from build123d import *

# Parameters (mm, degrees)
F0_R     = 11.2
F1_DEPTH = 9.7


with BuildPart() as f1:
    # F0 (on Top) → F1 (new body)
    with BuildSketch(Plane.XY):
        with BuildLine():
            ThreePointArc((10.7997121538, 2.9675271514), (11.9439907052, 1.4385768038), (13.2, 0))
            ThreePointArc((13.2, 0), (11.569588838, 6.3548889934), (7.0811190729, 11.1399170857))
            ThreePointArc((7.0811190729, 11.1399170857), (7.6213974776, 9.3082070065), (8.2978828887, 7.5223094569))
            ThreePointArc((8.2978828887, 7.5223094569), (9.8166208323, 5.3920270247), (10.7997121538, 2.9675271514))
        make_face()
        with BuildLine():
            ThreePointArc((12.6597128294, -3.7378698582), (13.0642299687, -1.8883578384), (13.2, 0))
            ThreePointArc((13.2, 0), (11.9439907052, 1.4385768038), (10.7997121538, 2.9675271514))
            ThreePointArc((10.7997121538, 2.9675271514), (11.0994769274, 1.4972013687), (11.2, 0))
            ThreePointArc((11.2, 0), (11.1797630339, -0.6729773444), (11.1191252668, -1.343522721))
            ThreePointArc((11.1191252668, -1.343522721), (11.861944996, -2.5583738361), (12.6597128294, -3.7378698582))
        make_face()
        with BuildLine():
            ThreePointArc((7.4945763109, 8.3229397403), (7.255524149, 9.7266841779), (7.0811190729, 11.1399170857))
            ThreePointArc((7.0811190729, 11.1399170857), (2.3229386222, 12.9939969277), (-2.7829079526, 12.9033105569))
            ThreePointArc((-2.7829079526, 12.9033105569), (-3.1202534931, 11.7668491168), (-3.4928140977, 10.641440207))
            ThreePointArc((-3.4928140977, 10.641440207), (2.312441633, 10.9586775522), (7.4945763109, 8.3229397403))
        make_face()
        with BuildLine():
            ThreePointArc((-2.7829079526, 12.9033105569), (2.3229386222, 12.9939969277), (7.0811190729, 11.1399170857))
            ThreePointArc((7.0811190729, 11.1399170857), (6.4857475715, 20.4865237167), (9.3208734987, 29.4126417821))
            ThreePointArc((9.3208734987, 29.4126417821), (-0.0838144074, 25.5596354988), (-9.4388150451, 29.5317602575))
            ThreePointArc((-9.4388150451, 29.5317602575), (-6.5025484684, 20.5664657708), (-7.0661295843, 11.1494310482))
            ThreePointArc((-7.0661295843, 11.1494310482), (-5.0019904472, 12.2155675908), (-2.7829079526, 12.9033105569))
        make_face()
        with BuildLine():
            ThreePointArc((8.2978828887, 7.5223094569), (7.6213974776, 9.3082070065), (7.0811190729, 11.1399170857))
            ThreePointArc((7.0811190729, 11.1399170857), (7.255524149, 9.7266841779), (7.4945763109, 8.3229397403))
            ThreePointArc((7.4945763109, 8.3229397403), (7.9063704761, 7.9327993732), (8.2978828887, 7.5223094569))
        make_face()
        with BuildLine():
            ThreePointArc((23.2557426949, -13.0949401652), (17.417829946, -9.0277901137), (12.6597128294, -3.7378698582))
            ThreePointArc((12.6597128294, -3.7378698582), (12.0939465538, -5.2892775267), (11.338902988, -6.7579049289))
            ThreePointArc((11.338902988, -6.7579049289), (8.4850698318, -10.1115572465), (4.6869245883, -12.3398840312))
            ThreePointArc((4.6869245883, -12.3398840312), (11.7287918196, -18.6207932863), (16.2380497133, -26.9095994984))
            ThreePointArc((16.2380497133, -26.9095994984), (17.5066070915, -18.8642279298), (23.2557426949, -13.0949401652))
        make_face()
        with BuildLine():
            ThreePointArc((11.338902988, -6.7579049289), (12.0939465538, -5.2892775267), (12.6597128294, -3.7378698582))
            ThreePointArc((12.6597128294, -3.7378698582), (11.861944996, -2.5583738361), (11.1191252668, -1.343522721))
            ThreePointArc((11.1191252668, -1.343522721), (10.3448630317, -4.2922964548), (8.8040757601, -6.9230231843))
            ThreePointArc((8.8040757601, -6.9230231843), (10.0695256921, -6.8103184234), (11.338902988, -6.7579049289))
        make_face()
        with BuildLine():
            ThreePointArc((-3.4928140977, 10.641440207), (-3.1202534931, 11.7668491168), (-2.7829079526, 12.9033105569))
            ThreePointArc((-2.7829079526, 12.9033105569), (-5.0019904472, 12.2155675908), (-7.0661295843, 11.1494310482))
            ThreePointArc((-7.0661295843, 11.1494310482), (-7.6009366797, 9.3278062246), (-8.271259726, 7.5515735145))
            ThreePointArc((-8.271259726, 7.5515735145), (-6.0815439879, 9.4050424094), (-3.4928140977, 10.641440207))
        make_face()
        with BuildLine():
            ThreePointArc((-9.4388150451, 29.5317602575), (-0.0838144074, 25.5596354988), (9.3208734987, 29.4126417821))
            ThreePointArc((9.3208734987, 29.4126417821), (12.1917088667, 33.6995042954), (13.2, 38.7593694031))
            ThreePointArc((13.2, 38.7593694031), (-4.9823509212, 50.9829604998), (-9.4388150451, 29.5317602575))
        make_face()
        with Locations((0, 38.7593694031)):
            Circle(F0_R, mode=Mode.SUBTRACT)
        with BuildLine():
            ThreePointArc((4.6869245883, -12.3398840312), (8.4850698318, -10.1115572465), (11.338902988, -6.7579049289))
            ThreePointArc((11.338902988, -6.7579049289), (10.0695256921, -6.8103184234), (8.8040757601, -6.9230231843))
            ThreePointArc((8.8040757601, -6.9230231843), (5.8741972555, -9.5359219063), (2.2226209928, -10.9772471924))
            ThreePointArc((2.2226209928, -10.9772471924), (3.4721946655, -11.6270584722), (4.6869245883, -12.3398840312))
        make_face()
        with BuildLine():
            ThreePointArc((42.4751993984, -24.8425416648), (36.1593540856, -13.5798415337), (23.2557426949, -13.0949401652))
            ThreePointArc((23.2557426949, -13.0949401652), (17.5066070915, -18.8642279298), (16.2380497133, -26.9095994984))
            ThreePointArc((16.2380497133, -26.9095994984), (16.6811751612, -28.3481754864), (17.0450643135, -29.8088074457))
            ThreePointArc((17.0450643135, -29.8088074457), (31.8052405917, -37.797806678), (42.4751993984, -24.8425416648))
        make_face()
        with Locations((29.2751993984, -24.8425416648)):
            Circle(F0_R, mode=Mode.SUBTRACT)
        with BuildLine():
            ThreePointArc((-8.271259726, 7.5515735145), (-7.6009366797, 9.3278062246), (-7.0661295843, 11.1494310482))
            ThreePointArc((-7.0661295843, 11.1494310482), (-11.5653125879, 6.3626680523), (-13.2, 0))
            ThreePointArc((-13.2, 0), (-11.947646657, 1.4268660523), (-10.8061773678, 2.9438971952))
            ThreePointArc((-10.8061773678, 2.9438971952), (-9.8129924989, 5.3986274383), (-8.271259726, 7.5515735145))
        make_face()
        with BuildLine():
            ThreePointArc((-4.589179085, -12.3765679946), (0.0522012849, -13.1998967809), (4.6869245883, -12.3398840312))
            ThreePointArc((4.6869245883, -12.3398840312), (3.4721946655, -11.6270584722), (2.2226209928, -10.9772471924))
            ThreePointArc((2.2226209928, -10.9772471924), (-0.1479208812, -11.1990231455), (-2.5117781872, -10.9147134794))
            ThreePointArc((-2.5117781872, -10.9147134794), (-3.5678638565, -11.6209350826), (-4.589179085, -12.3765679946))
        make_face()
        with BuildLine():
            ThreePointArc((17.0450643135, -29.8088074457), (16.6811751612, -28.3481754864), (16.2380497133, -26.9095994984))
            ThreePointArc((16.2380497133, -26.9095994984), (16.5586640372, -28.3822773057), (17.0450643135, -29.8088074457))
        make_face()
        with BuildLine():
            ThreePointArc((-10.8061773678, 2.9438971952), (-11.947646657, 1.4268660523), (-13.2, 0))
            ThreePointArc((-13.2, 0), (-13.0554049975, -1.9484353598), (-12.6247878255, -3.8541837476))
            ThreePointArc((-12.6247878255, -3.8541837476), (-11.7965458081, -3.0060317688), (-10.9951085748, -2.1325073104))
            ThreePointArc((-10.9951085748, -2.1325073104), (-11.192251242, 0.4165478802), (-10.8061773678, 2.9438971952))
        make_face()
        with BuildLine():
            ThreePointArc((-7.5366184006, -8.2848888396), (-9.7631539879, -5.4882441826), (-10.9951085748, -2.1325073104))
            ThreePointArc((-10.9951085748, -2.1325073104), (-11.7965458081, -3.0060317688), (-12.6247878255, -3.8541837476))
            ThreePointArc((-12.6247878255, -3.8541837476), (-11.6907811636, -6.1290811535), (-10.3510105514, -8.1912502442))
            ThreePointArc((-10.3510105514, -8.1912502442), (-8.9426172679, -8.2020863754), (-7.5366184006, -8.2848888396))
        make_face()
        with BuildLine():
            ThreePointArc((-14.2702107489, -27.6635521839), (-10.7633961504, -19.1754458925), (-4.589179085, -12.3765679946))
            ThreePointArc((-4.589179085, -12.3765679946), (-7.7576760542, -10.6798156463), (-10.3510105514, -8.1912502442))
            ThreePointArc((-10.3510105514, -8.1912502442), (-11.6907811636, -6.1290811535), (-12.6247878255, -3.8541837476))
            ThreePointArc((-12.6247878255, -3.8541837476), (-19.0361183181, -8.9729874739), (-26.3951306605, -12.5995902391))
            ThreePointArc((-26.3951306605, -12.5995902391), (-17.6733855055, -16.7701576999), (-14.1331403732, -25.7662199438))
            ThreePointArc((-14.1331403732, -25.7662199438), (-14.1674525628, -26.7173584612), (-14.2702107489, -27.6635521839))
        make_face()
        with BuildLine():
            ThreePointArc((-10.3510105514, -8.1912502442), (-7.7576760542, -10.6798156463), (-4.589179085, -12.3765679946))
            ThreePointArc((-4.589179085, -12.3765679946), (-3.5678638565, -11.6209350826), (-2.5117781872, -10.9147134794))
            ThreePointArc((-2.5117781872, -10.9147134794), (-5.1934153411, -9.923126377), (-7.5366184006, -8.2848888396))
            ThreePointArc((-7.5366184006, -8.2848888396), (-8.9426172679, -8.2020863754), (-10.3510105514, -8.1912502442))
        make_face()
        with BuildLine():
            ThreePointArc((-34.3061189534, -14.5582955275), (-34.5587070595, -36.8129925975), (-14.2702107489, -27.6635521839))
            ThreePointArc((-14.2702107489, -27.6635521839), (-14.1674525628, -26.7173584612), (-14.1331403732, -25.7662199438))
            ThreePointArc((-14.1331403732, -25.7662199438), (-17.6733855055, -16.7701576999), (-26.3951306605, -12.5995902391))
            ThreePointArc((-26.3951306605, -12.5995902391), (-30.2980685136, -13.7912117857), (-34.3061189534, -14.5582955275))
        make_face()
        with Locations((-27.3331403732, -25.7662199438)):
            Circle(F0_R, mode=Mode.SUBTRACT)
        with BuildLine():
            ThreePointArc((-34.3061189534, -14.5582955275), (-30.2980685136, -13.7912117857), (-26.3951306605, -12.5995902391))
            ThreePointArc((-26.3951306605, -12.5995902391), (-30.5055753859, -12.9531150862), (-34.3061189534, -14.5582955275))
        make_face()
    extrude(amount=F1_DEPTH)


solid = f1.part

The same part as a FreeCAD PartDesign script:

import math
import FreeCAD as App
import Part
import Sketcher
from FreeCAD import Vector
Q = App.Units.Quantity

doc = App.newDocument("Part")
body = doc.addObject("PartDesign::Body", "Body")

# Sketch on XY plane
sketch1 = body.newObject("Sketcher::SketchObject", "Sketch")
sketch1.AttachmentSupport = (doc.getObject("XY_Plane"), [""])
sketch1.MapMode = "FlatFace"
sketch1.addGeometry(Part.ArcOfCircle(Part.Circle(Vector(11.8, -33.5, 0), Vector(0, 0, 1), 26.7), math.radians(128), math.radians(167)), False)
sketch1.addGeometry(Part.ArcOfCircle(Part.Circle(Vector(0, 0, 0), Vector(0, 0, 1), 13.2), math.radians(-110), math.radians(-69)), False)
sketch1.addGeometry(Part.ArcOfCircle(Part.Circle(Vector(-9.9, -35.7, 0), Vector(0, 0, 1), 27.5), math.radians(19), math.radians(58)), False)
sketch1.addGeometry(Part.ArcOfCircle(Part.Circle(Vector(29.3, -24.8, 0), Vector(0, 0, 1), 13.2), math.radians(-170.99), math.radians(-157.9)), False)
sketch1.addGeometry(Part.ArcOfCircle(Part.Circle(Vector(29.3, -24.8, 0), Vector(0, 0, 1), 13.2), math.radians(-158), math.radians(0)), False)
sketch1.addGeometry(Part.ArcOfCircle(Part.Circle(Vector(29.3, -24.8, 0), Vector(0, 0, 1), 13.2), math.radians(0), math.radians(117)), False)
sketch1.addGeometry(Part.ArcOfCircle(Part.Circle(Vector(38, 14.2, 0), Vector(0, 0, 1), 31), math.radians(-145), math.radians(-118)), False)
sketch1.addGeometry(Part.ArcOfCircle(Part.Circle(Vector(0, 0, 0), Vector(0, 0, 1), 13.2), math.radians(-16.45), math.radians(0)), False)
sketch1.addGeometry(Part.ArcOfCircle(Part.Circle(Vector(0, 0, 0), Vector(0, 0, 1), 13.2), math.radians(0), math.radians(58)), False)
sketch1.addGeometry(Part.ArcOfCircle(Part.Circle(Vector(31.7, 17.4, 0), Vector(0, 0, 1), 25.4), math.radians(152), math.radians(194)), False)
sketch1.addGeometry(Part.ArcOfCircle(Part.Circle(Vector(0, 38.8, 0), Vector(0, 0, 1), 13.2), math.radians(-45), math.radians(0)), False)
sketch1.addGeometry(Part.ArcOfCircle(Part.Circle(Vector(0, 38.8, 0), Vector(0, 0, 1), 13.2), math.radians(0), math.radians(224)), False)
sketch1.addGeometry(Part.ArcOfCircle(Part.Circle(Vector(-31.5, 17.3, 0), Vector(0, 0, 1), 25.2), math.radians(-14), math.radians(29)), False)
sketch1.addGeometry(Part.ArcOfCircle(Part.Circle(Vector(0, 0, 0), Vector(0, 0, 1), 13.2), math.radians(122), math.radians(180)), False)
sketch1.addGeometry(Part.ArcOfCircle(Part.Circle(Vector(0, 0, 0), Vector(0, 0, 1), 13.2), math.radians(180), math.radians(196.98)), False)
sketch1.addGeometry(Part.ArcOfCircle(Part.Circle(Vector(-39.4, 23.2, 0), Vector(0, 0, 1), 38.1), math.radians(-70), math.radians(-45)), False)
sketch1.addGeometry(Part.ArcOfCircle(Part.Circle(Vector(-27.3, -25.8, 0), Vector(0, 0, 1), 13.2), math.radians(86), math.radians(122)), False)
sketch1.addGeometry(Part.ArcOfCircle(Part.Circle(Vector(-27.3, -25.8, 0), Vector(0, 0, 1), 13.2), math.radians(122), math.radians(352)), False)
sketch1.addGeometry(Part.Circle(Vector(-27.3, -25.8, 0), Vector(0, 0, 1), 11.2), False)
sketch1.addGeometry(Part.ArcOfCircle(Part.Circle(Vector(0, 0, 0), Vector(0, 0, 1), 11.2), math.radians(-103), math.radians(-79)), False)
sketch1.addGeometry(Part.ArcOfCircle(Part.Circle(Vector(0, 0, 0), Vector(0, 0, 1), 11.2), math.radians(-132), math.radians(-103)), False)
sketch1.addGeometry(Part.ArcOfCircle(Part.Circle(Vector(0, 0, 0), Vector(0, 0, 1), 11.2), math.radians(-169), math.radians(-132)), False)
sketch1.addGeometry(Part.ArcOfCircle(Part.Circle(Vector(0, 0, 0), Vector(0, 0, 1), 11.2), math.radians(165), math.radians(191)), False)
sketch1.addGeometry(Part.ArcOfCircle(Part.Circle(Vector(0, 0, 0), Vector(0, 0, 1), 11.2), math.radians(138), math.radians(165)), False)
sketch1.addGeometry(Part.ArcOfCircle(Part.Circle(Vector(0, 0, 0), Vector(0, 0, 1), 11.2), math.radians(108), math.radians(138)), False)
sketch1.addGeometry(Part.ArcOfCircle(Part.Circle(Vector(0, 0, 0), Vector(0, 0, 1), 11.2), math.radians(48), math.radians(108)), False)
sketch1.addGeometry(Part.ArcOfCircle(Part.Circle(Vector(0, 0, 0), Vector(0, 0, 1), 11.2), math.radians(42.19), math.radians(48)), False)
sketch1.addGeometry(Part.ArcOfCircle(Part.Circle(Vector(0, 0, 0), Vector(0, 0, 1), 11.2), math.radians(15), math.radians(42)), False)
sketch1.addGeometry(Part.ArcOfCircle(Part.Circle(Vector(0, 0, 0), Vector(0, 0, 1), 11.2), math.radians(0), math.radians(15.36)), False)
sketch1.addGeometry(Part.ArcOfCircle(Part.Circle(Vector(0, 0, 0), Vector(0, 0, 1), 11.2), math.radians(-6.89), math.radians(0)), False)
sketch1.addGeometry(Part.ArcOfCircle(Part.Circle(Vector(0, 0, 0), Vector(0, 0, 1), 11.2), math.radians(-79), math.radians(-7)), False)
sketch1.addGeometry(Part.Circle(Vector(29.3, -24.8, 0), Vector(0, 0, 1), 11.2), False)
sketch1.addGeometry(Part.Circle(Vector(0, 38.8, 0), Vector(0, 0, 1), 11.2), False)
sketch1.addConstraint(Sketcher.Constraint("Coincident", 0, 1, 1, 1))
sketch1.addConstraint(Sketcher.Constraint("Coincident", 1, 2, 2, 2))
sketch1.addConstraint(Sketcher.Constraint("Coincident", 2, 1, 3, 1))
sketch1.addConstraint(Sketcher.Constraint("Tangent", 3, 2, 4, 1))
sketch1.addConstraint(Sketcher.Constraint("Tangent", 4, 2, 5, 1))
sketch1.addConstraint(Sketcher.Constraint("Coincident", 5, 2, 6, 2))
sketch1.addConstraint(Sketcher.Constraint("Coincident", 6, 1, 7, 1))
sketch1.addConstraint(Sketcher.Constraint("Tangent", 7, 2, 8, 1))
sketch1.addConstraint(Sketcher.Constraint("Coincident", 8, 2, 9, 2))
sketch1.addConstraint(Sketcher.Constraint("Coincident", 9, 1, 10, 1))
sketch1.addConstraint(Sketcher.Constraint("Tangent", 10, 2, 11, 1))
sketch1.addConstraint(Sketcher.Constraint("Coincident", 11, 2, 12, 2))
sketch1.addConstraint(Sketcher.Constraint("Coincident", 12, 1, 13, 1))
sketch1.addConstraint(Sketcher.Constraint("Tangent", 13, 2, 14, 1))
sketch1.addConstraint(Sketcher.Constraint("Coincident", 14, 2, 15, 2))
sketch1.addConstraint(Sketcher.Constraint("Coincident", 15, 1, 16, 1))
sketch1.addConstraint(Sketcher.Constraint("Tangent", 16, 2, 17, 1))
sketch1.addConstraint(Sketcher.Constraint("Coincident", 17, 2, 0, 2))
sketch1.addConstraint(Sketcher.Constraint("Tangent", 19, 1, 20, 2))
sketch1.addConstraint(Sketcher.Constraint("Tangent", 20, 1, 21, 2))
sketch1.addConstraint(Sketcher.Constraint("Tangent", 21, 1, 22, 2))
sketch1.addConstraint(Sketcher.Constraint("Tangent", 22, 1, 23, 2))
sketch1.addConstraint(Sketcher.Constraint("Tangent", 23, 1, 24, 2))
sketch1.addConstraint(Sketcher.Constraint("Tangent", 24, 1, 25, 2))
sketch1.addConstraint(Sketcher.Constraint("Tangent", 25, 1, 26, 2))
sketch1.addConstraint(Sketcher.Constraint("Tangent", 26, 1, 27, 2))
sketch1.addConstraint(Sketcher.Constraint("Tangent", 27, 1, 28, 2))
sketch1.addConstraint(Sketcher.Constraint("Tangent", 28, 1, 29, 2))
sketch1.addConstraint(Sketcher.Constraint("Tangent", 29, 1, 30, 2))
sketch1.addConstraint(Sketcher.Constraint("Tangent", 30, 1, 19, 2))
sketch1.addConstraint(Sketcher.Constraint("Coincident", 1, 3, -1, 1))
sketch1.addConstraint(Sketcher.Constraint("Coincident", 7, 3, -1, 1))
sketch1.addConstraint(Sketcher.Constraint("Coincident", 13, 3, -1, 1))
sketch1.addConstraint(Sketcher.Constraint("Coincident", 19, 3, -1, 1))
sketch1.addConstraint(Sketcher.Constraint("Coincident", 21, 3, -1, 1))
sketch1.addConstraint(Sketcher.Constraint("Coincident", 23, 3, -1, 1))
sketch1.addConstraint(Sketcher.Constraint("Coincident", 25, 3, -1, 1))
sketch1.addConstraint(Sketcher.Constraint("Coincident", 27, 3, -1, 1))
sketch1.addConstraint(Sketcher.Constraint("Coincident", 5, 3, 3, 3))
sketch1.addConstraint(Sketcher.Constraint("Coincident", 18, 3, 16, 3))
sketch1.addConstraint(Sketcher.Constraint("Coincident", 31, 3, 3, 3))
sketch1.addConstraint(Sketcher.Constraint("Coincident", 32, 3, 10, 3))
sketch1.addConstraint(Sketcher.Constraint("Equal", 1, 3))
sketch1.addConstraint(Sketcher.Constraint("Equal", 5, 7))
sketch1.addConstraint(Sketcher.Constraint("Equal", 7, 8))
sketch1.addConstraint(Sketcher.Constraint("Equal", 8, 10))
sketch1.addConstraint(Sketcher.Constraint("Equal", 10, 11))
sketch1.addConstraint(Sketcher.Constraint("Equal", 11, 13))
sketch1.addConstraint(Sketcher.Constraint("Equal", 13, 14))
sketch1.addConstraint(Sketcher.Constraint("Equal", 14, 16))
sketch1.addConstraint(Sketcher.Constraint("Equal", 16, 17))
sketch1.addConstraint(Sketcher.Constraint("Equal", 18, 19))
sketch1.addConstraint(Sketcher.Constraint("Equal", 27, 28))
sketch1.addConstraint(Sketcher.Constraint("Equal", 30, 31))
sketch1.addConstraint(Sketcher.Constraint("Equal", 31, 32))
sketch1.addConstraint(Sketcher.Constraint("PointOnObject", 10, 3, -2))
sketch1.addConstraint(Sketcher.Constraint("PointOnObject", 7, 2, -1))
sketch1.addConstraint(Sketcher.Constraint("PointOnObject", 13, 2, -1))
sketch1.addConstraint(Sketcher.Constraint("PointOnObject", 28, 1, -1))
sketch1.addConstraint(Sketcher.Constraint("Horizontal", 31, 3, 4, 2))
sketch1.addConstraint(Sketcher.Constraint("Horizontal", 32, 3, 10, 2))
sketch1.addConstraint(Sketcher.Constraint("Diameter", 18, Q("22.4 mm")))
sketch1.addConstraint(Sketcher.Constraint("Radius", 1, Q("13.2 mm")))
sketch1.addConstraint(Sketcher.Constraint("Radius", 15, Q("38.076199 mm")))
sketch1.addConstraint(Sketcher.Constraint("Radius", 0, Q("26.714522 mm")))
sketch1.addConstraint(Sketcher.Constraint("Radius", 9, Q("25.378809 mm")))
sketch1.addConstraint(Sketcher.Constraint("Radius", 2, Q("27.548882 mm")))
sketch1.addConstraint(Sketcher.Constraint("Radius", 6, Q("31.032348 mm")))
sketch1.addConstraint(Sketcher.Constraint("Radius", 12, Q("25.219938 mm")))
sketch1.addConstraint(Sketcher.Constraint("DistanceX", 2, 3, -1, 1, Q("9.858699 mm")))
sketch1.addConstraint(Sketcher.Constraint("DistanceX", -1, 1, 3, 3, Q("29.275199 mm")))
sketch1.addConstraint(Sketcher.Constraint("DistanceY", 2, 1, -1, 1, Q("26.909599 mm")))
sketch1.addConstraint(Sketcher.Constraint("DistanceY", 3, 3, -1, 1, Q("24.842542 mm")))
sketch1.addConstraint(Sketcher.Constraint("DistanceX", -1, 1, 6, 3, Q("37.958921 mm")))
sketch1.addConstraint(Sketcher.Constraint("DistanceX", -1, 1, 9, 3, Q("31.676029 mm")))
sketch1.addConstraint(Sketcher.Constraint("DistanceY", -1, 1, 9, 3, Q("17.398859 mm")))
sketch1.addConstraint(Sketcher.Constraint("DistanceY", -1, 1, 10, 3, Q("38.759369 mm")))
sketch1.addConstraint(Sketcher.Constraint("DistanceX", 12, 3, -1, 1, Q("31.514991 mm")))
sketch1.addConstraint(Sketcher.Constraint("DistanceX", 15, 3, -1, 1, Q("39.449149 mm")))
sketch1.addConstraint(Sketcher.Constraint("DistanceX", 16, 3, -1, 1, Q("27.33314 mm")))
sketch1.addConstraint(Sketcher.Constraint("DistanceY", 16, 3, -1, 1, Q("25.76622 mm")))
sketch1.addConstraint(Sketcher.Constraint("DistanceX", 0, 1, -1, 1, Q("4.589179 mm")))
sketch1.addConstraint(Sketcher.Constraint("DistanceY", 5, 2, -1, 1, Q("13.09494 mm")))
sketch1.addConstraint(Sketcher.Constraint("DistanceY", -1, 1, 11, 2, Q("29.53176 mm")))
sketch1.addConstraint(Sketcher.Constraint("DistanceX", 15, 1, -1, 1, Q("26.395131 mm")))
sketch1.addConstraint(Sketcher.Constraint("DistanceX", 16, 2, -1, 1, Q("34.306119 mm")))
sketch1.addConstraint(Sketcher.Constraint("DistanceX", 17, 2, -1, 1, Q("14.270211 mm")))
sketch1.addConstraint(Sketcher.Constraint("DistanceX", 19, 1, -1, 1, Q("2.511778 mm")))
sketch1.addConstraint(Sketcher.Constraint("DistanceX", 20, 1, -1, 1, Q("7.536618 mm")))
sketch1.addConstraint(Sketcher.Constraint("DistanceX", 21, 1, -1, 1, Q("10.995109 mm")))
sketch1.addConstraint(Sketcher.Constraint("DistanceX", 23, 1, -1, 1, Q("8.27126 mm")))
sketch1.addConstraint(Sketcher.Constraint("DistanceY", -1, 1, 24, 1, Q("10.64144 mm")))
sketch1.addConstraint(Sketcher.Constraint("DistanceY", -1, 1, 25, 1, Q("8.32294 mm")))
sketch1.addConstraint(Sketcher.Constraint("DistanceY", -1, 1, 26, 1, Q("7.522309 mm")))
sketch1.addConstraint(Sketcher.Constraint("DistanceX", -1, 1, 30, 1, Q("2.222621 mm")))
sketch1.addConstraint(Sketcher.Constraint("DistanceX", -1, 1, 3, 2, Q("17.045064 mm")))
sketch1.addConstraint(Sketcher.Constraint("DistanceX", 22, 1, -1, 1, Q("10.806177 mm")))
sketch1.addConstraint(Sketcher.Constraint("DistanceX", -1, 1, 27, 1, Q("10.799712 mm")))
sketch1.addConstraint(Sketcher.Constraint("DistanceX", -1, 1, 29, 1, Q("11.119125 mm")))
pad1 = body.newObject("PartDesign::Pad", "Pad")
pad1.Profile = sketch1
pad1.Length = 9.7

doc.recompute()
